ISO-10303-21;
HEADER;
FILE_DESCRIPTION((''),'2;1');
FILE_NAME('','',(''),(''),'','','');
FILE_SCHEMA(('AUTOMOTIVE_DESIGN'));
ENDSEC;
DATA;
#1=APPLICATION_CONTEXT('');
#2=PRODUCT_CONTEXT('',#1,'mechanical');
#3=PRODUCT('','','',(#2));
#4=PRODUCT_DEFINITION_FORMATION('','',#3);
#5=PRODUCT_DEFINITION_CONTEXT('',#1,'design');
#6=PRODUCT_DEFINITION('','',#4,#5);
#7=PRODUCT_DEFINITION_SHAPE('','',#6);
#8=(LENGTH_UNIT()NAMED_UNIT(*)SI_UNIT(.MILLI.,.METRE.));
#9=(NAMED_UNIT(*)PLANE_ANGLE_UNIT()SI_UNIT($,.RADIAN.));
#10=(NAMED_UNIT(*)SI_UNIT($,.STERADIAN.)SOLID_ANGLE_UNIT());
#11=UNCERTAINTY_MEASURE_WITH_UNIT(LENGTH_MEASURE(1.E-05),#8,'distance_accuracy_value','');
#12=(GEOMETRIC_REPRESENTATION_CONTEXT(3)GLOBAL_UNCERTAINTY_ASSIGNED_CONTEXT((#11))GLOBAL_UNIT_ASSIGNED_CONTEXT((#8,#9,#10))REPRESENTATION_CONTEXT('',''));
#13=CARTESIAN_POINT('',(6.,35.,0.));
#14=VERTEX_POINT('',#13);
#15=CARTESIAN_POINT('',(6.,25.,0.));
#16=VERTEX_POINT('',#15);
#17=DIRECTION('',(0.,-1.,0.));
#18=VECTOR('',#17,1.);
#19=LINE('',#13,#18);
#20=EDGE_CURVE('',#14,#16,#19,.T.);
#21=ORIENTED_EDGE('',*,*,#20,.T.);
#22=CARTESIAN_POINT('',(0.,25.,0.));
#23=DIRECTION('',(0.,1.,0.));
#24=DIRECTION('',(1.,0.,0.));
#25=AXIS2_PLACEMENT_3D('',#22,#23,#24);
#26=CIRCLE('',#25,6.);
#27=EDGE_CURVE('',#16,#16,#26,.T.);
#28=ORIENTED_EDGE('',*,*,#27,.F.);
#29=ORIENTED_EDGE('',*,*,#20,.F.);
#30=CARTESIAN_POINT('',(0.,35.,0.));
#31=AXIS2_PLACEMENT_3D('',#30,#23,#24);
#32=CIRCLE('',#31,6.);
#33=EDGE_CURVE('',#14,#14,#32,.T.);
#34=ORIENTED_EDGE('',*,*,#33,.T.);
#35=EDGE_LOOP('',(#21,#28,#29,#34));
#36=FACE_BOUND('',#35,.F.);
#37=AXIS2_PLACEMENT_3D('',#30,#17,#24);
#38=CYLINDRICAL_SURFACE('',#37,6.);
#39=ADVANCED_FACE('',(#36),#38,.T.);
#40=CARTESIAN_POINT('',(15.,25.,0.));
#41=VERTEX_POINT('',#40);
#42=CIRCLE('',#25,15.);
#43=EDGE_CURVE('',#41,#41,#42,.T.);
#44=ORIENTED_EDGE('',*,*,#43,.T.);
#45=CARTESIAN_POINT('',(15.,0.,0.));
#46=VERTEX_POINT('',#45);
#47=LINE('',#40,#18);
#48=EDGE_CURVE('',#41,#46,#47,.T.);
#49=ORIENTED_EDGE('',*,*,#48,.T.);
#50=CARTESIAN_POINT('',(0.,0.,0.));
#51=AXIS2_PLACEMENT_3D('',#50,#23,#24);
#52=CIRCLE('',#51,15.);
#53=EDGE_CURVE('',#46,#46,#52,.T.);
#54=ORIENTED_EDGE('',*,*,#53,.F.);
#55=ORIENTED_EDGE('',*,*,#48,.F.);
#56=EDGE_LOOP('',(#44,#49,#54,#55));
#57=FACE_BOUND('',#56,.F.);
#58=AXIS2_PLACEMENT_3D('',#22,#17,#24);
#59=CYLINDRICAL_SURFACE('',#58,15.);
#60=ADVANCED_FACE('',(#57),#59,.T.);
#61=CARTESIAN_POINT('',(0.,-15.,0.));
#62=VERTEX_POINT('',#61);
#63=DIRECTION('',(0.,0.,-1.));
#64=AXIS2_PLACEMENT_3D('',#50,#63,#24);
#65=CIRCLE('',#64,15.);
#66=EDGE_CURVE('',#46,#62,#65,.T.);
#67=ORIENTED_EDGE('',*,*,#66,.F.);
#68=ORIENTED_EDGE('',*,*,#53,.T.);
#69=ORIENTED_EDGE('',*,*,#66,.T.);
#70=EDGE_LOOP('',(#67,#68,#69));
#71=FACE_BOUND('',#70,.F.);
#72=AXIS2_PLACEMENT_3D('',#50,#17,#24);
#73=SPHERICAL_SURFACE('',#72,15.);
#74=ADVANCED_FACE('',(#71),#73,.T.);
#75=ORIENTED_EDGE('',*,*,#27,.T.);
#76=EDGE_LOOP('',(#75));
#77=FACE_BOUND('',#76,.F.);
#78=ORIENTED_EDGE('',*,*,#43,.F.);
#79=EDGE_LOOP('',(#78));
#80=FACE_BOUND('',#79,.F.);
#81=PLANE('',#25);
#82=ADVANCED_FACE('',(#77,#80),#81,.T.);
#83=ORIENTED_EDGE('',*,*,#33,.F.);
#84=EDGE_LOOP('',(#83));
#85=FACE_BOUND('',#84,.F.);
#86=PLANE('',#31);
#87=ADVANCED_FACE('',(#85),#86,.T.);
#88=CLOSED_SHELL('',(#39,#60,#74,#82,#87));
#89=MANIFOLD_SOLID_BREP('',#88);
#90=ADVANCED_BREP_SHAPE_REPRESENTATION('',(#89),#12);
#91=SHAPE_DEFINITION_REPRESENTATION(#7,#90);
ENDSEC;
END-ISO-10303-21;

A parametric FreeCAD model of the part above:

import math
import FreeCAD as App
import Part
import Sketcher

doc = App.newDocument("Part")
body = doc.addObject("PartDesign::Body", "Body")

sketch1 = body.newObject("Sketcher::SketchObject", "Sketch")
sketch1.AttachmentSupport = (doc.getObject("XY_Plane"), [""])
sketch1.MapMode = "FlatFace"
sketch1.addGeometry([
    Part.LineSegment(App.Vector(0, -15, 0), App.Vector(0, 35, 0)),
    Part.LineSegment(App.Vector(0, 35, 0), App.Vector(-6, 35, 0)),
    Part.LineSegment(App.Vector(-6, 35, 0), App.Vector(-6, 25, 0)),
    Part.LineSegment(App.Vector(-6, 25, 0), App.Vector(-15, 25, 0)),
    Part.LineSegment(App.Vector(-15, 25, 0), App.Vector(-15, 0, 0)),
    Part.ArcOfCircle(Part.Circle(App.Vector(0, 0, 0), App.Vector(0, 0, 1), 15), math.radians(180), math.radians(270)),
], False)
sketch1.addConstraint([
    Sketcher.Constraint("Coincident", 0, 2, 1, 1),
    Sketcher.Constraint("Coincident", 1, 2, 2, 1),
    Sketcher.Constraint("Coincident", 2, 2, 3, 1),
    Sketcher.Constraint("Coincident", 3, 2, 4, 1),
    Sketcher.Constraint("Tangent", 4, 2, 5, 1),
    Sketcher.Constraint("Coincident", 5, 2, 0, 1),
    Sketcher.Constraint("Vertical", 0),
    Sketcher.Constraint("Horizontal", 1),
    Sketcher.Constraint("Vertical", 2),
    Sketcher.Constraint("Horizontal", 3),
    Sketcher.Constraint("Vertical", 4),
    Sketcher.Constraint("Coincident", 5, 3, -1, 1),
    Sketcher.Constraint("PointOnObject", 0, 2, -2),
    Sketcher.Constraint("Radius", 5, 15.0),
    Sketcher.Constraint("DistanceX", 1, 2, 1, 1, 6.0),
    Sketcher.Constraint("DistanceY", 0, 1, 0, 2, 50.0),
    Sketcher.Constraint("DistanceY", 2, 2, 2, 1, 10.0),
])
revolution = body.newObject("PartDesign::Revolution", "Revolution")
revolution.Profile = sketch1
revolution.ReferenceAxis = (sketch1, ["V_Axis"])
revolution.Angle = 360

doc.recompute()
